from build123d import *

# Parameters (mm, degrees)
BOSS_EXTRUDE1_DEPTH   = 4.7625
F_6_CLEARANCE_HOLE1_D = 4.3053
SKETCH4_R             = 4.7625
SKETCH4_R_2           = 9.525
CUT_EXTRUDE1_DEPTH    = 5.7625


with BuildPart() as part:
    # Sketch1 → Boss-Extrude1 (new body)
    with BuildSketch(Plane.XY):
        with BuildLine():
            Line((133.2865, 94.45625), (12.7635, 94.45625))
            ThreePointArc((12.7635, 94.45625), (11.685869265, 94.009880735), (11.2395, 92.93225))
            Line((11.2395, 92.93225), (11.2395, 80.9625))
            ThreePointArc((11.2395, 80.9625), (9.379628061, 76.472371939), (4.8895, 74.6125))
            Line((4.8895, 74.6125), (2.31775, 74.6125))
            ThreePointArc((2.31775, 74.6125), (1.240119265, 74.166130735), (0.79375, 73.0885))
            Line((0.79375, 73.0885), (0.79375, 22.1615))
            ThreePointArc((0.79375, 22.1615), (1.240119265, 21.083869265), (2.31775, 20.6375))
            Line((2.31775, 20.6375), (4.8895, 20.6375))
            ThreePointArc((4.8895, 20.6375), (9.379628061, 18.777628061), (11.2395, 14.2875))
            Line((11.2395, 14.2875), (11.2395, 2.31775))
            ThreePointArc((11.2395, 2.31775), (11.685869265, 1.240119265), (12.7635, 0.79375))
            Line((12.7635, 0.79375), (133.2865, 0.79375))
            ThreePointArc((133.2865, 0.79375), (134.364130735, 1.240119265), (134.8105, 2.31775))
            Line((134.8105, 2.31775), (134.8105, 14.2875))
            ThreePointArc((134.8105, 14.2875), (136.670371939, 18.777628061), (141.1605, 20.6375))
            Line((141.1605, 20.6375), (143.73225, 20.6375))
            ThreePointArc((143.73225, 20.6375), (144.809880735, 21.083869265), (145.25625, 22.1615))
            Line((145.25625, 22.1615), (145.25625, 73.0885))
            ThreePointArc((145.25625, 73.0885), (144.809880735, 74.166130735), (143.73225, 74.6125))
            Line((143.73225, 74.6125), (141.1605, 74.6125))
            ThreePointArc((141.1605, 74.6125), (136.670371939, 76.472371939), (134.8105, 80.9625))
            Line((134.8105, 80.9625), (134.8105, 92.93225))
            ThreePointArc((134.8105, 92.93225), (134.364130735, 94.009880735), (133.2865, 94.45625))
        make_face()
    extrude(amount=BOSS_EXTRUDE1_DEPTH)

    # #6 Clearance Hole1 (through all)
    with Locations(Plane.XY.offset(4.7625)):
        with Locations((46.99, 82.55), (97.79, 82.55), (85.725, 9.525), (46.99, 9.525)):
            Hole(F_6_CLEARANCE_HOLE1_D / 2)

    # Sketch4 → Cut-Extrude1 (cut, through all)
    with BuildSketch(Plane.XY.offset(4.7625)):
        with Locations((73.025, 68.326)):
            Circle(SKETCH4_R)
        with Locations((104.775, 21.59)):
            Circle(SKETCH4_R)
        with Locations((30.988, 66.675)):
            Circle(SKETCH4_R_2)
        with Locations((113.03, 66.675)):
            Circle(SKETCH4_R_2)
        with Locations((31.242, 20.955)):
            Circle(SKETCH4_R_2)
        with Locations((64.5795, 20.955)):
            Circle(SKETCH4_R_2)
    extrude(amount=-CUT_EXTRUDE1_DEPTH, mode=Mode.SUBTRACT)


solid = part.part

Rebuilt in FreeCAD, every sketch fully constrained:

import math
import FreeCAD as App
import Part
import Sketcher
Q = App.Units.Quantity

doc = App.newDocument("Part")
params = doc.addObject("Spreadsheet::Sheet", "Params")
for row, (alias, value) in enumerate([
    ("sketch1_radius", "0.06 in"),
    ("sketch1_radius2", "0.25 in"),
    ("sketch1_width", "4.745 in"),
    ("sketch1_height", "2.005 in"),
    ("pad1_length", "0.1875 in"),
    ("hole_diameter", "0.1695 in"),
    ("sketch3_diameter", "0.75 in"),
    ("sketch3_diameter2", "0.375 in"),
], start=1):
    params.set(f"A{row}", alias)
    params.set(f"B{row}", "=" + value)
    params.setAlias(f"B{row}", alias)

body = doc.addObject("PartDesign::Body", "Body")

# Sketch on XY plane
sketch1 = body.newObject("Sketcher::SketchObject", "Sketch")
sketch1.AttachmentSupport = (doc.getObject("XY_Plane"), [""])
sketch1.MapMode = "FlatFace"
sketch1.addGeometry(Part.LineSegment(App.Vector(133.3, 94.5, 0), App.Vector(12.8, 94.5, 0)), False)
sketch1.addGeometry(Part.ArcOfCircle(Part.Circle(App.Vector(12.8, 92.9, 0), App.Vector(0, 0, 1), 1.5), math.radians(90), math.radians(180)), False)
sketch1.addGeometry(Part.LineSegment(App.Vector(11.2, 92.9, 0), App.Vector(11.2, 81, 0)), False)
sketch1.addGeometry(Part.ArcOfCircle(Part.Circle(App.Vector(4.9, 81, 0), App.Vector(0, 0, 1), 6.3), math.radians(-90), math.radians(0)), False)
sketch1.addGeometry(Part.LineSegment(App.Vector(4.9, 74.6, 0), App.Vector(2.3, 74.6, 0)), False)
sketch1.addGeometry(Part.ArcOfCircle(Part.Circle(App.Vector(2.3, 73.1, 0), App.Vector(0, 0, 1), 1.5), math.radians(90), math.radians(180)), False)
sketch1.addGeometry(Part.LineSegment(App.Vector(0.8, 73.1, 0), App.Vector(0.8, 22.2, 0)), False)
sketch1.addGeometry(Part.ArcOfCircle(Part.Circle(App.Vector(2.3, 22.2, 0), App.Vector(0, 0, 1), 1.5), math.radians(180), math.radians(270)), False)
sketch1.addGeometry(Part.LineSegment(App.Vector(2.3, 20.6, 0), App.Vector(4.9, 20.6, 0)), False)
sketch1.addGeometry(Part.ArcOfCircle(Part.Circle(App.Vector(4.9, 14.3, 0), App.Vector(0, 0, 1), 6.3), math.radians(0), math.radians(90)), False)
sketch1.addGeometry(Part.LineSegment(App.Vector(11.2, 14.3, 0), App.Vector(11.2, 2.3, 0)), False)
sketch1.addGeometry(Part.ArcOfCircle(Part.Circle(App.Vector(12.8, 2.3, 0), App.Vector(0, 0, 1), 1.5), math.radians(180), math.radians(270)), False)
sketch1.addGeometry(Part.LineSegment(App.Vector(12.8, 0.8, 0), App.Vector(133.3, 0.8, 0)), False)
sketch1.addGeometry(Part.ArcOfCircle(Part.Circle(App.Vector(133.3, 2.3, 0), App.Vector(0, 0, 1), 1.5), math.radians(-90), math.radians(0)), False)
sketch1.addGeometry(Part.LineSegment(App.Vector(134.8, 2.3, 0), App.Vector(134.8, 14.3, 0)), False)
sketch1.addGeometry(Part.ArcOfCircle(Part.Circle(App.Vector(141.2, 14.3, 0), App.Vector(0, 0, 1), 6.3), math.radians(90), math.radians(180)), False)
sketch1.addGeometry(Part.LineSegment(App.Vector(141.2, 20.6, 0), App.Vector(143.7, 20.6, 0)), False)
sketch1.addGeometry(Part.ArcOfCircle(Part.Circle(App.Vector(143.7, 22.2, 0), App.Vector(0, 0, 1), 1.5), math.radians(-90), math.radians(0)), False)
sketch1.addGeometry(Part.LineSegment(App.Vector(145.3, 22.2, 0), App.Vector(145.3, 73.1, 0)), False)
sketch1.addGeometry(Part.ArcOfCircle(Part.Circle(App.Vector(143.7, 73.1, 0), App.Vector(0, 0, 1), 1.5), math.radians(0), math.radians(90)), False)
sketch1.addGeometry(Part.LineSegment(App.Vector(143.7, 74.6, 0), App.Vector(141.2, 74.6, 0)), False)
sketch1.addGeometry(Part.ArcOfCircle(Part.Circle(App.Vector(141.2, 81, 0), App.Vector(0, 0, 1), 6.3), math.radians(180), math.radians(270)), False)
sketch1.addGeometry(Part.LineSegment(App.Vector(134.8, 81, 0), App.Vector(134.8, 92.9, 0)), False)
sketch1.addGeometry(Part.ArcOfCircle(Part.Circle(App.Vector(133.3, 92.9, 0), App.Vector(0, 0, 1), 1.5), math.radians(0), math.radians(90)), False)
sketch1.addConstraint(Sketcher.Constraint("Tangent", 0, 2, 1, 1))
sketch1.addConstraint(Sketcher.Constraint("Tangent", 1, 2, 2, 1))
sketch1.addConstraint(Sketcher.Constraint("Tangent", 2, 2, 3, 2))
sketch1.addConstraint(Sketcher.Constraint("Tangent", 3, 1, 4, 1))
sketch1.addConstraint(Sketcher.Constraint("Tangent", 4, 2, 5, 1))
sketch1.addConstraint(Sketcher.Constraint("Tangent", 5, 2, 6, 1))
sketch1.addConstraint(Sketcher.Constraint("Tangent", 6, 2, 7, 1))
sketch1.addConstraint(Sketcher.Constraint("Tangent", 7, 2, 8, 1))
sketch1.addConstraint(Sketcher.Constraint("Tangent", 8, 2, 9, 2))
sketch1.addConstraint(Sketcher.Constraint("Tangent", 9, 1, 10, 1))
sketch1.addConstraint(Sketcher.Constraint("Tangent", 10, 2, 11, 1))
sketch1.addConstraint(Sketcher.Constraint("Tangent", 11, 2, 12, 1))
sketch1.addConstraint(Sketcher.Constraint("Tangent", 12, 2, 13, 1))
sketch1.addConstraint(Sketcher.Constraint("Tangent", 13, 2, 14, 1))
sketch1.addConstraint(Sketcher.Constraint("Tangent", 14, 2, 15, 2))
sketch1.addConstraint(Sketcher.Constraint("Tangent", 15, 1, 16, 1))
sketch1.addConstraint(Sketcher.Constraint("Tangent", 16, 2, 17, 1))
sketch1.addConstraint(Sketcher.Constraint("Tangent", 17, 2, 18, 1))
sketch1.addConstraint(Sketcher.Constraint("Tangent", 18, 2, 19, 1))
sketch1.addConstraint(Sketcher.Constraint("Tangent", 19, 2, 20, 1))
sketch1.addConstraint(Sketcher.Constraint("Tangent", 20, 2, 21, 2))
sketch1.addConstraint(Sketcher.Constraint("Tangent", 21, 1, 22, 1))
sketch1.addConstraint(Sketcher.Constraint("Tangent", 22, 2, 23, 1))
sketch1.addConstraint(Sketcher.Constraint("Tangent", 23, 2, 0, 1))
sketch1.addConstraint(Sketcher.Constraint("Horizontal", 0))
sketch1.addConstraint(Sketcher.Constraint("Vertical", 2))
sketch1.addConstraint(Sketcher.Constraint("Horizontal", 4))
sketch1.addConstraint(Sketcher.Constraint("Vertical", 6))
sketch1.addConstraint(Sketcher.Constraint("Horizontal", 8))
sketch1.addConstraint(Sketcher.Constraint("Vertical", 10))
sketch1.addConstraint(Sketcher.Constraint("Horizontal", 12))
sketch1.addConstraint(Sketcher.Constraint("Vertical", 14))
sketch1.addConstraint(Sketcher.Constraint("Horizontal", 16))
sketch1.addConstraint(Sketcher.Constraint("Vertical", 18))
sketch1.addConstraint(Sketcher.Constraint("Horizontal", 20))
sketch1.addConstraint(Sketcher.Constraint("Vertical", 22))
sketch1.addConstraint(Sketcher.Constraint("Equal", 1, 5))
sketch1.addConstraint(Sketcher.Constraint("Equal", 5, 7))
sketch1.addConstraint(Sketcher.Constraint("Equal", 3, 9))
sketch1.addConstraint(Sketcher.Constraint("Equal", 7, 11))
sketch1.addConstraint(Sketcher.Constraint("Equal", 11, 13))
sketch1.addConstraint(Sketcher.Constraint("Equal", 9, 15))
sketch1.addConstraint(Sketcher.Constraint("Equal", 13, 17))
sketch1.addConstraint(Sketcher.Constraint("Equal", 17, 19))
sketch1.addConstraint(Sketcher.Constraint("Equal", 15, 21))
sketch1.addConstraint(Sketcher.Constraint("Equal", 19, 23))
sketch1.addConstraint(Sketcher.Constraint("Horizontal", 9, 3, 15, 3))
sketch1.addConstraint(Sketcher.Constraint("Horizontal", 5, 3, 19, 3))
sketch1.addConstraint(Sketcher.Constraint("Vertical", 3, 3, 9, 3))
sketch1.addConstraint(Sketcher.Constraint("Vertical", 15, 3, 21, 3))
sketch1.addConstraint(Sketcher.Constraint("Equal", 8, 16))
sketch1.addConstraint(Sketcher.Constraint("Equal", 2, 10))
sketch1.addConstraint(Sketcher.Constraint("Radius", 1, Q("0.06 in")))
sketch1.addConstraint(Sketcher.Constraint("Radius", 3, Q("0.25 in")))
sketch1.addConstraint(Sketcher.Constraint("DistanceX", 0, 2, 0, 1, Q("4.745 in")))
sketch1.addConstraint(Sketcher.Constraint("DistanceY", 6, 2, 6, 1, Q("2.005 in")))
sketch1.addConstraint(Sketcher.Constraint("DistanceY", -1, 1, 3, 3, Q("3.1875 in")))
sketch1.addConstraint(Sketcher.Constraint("DistanceY", -1, 1, 0, 2, Q("3.71875 in")))
sketch1.addConstraint(Sketcher.Constraint("DistanceX", -1, 1, 5, 2, Q("0.03125 in")))
sketch1.addConstraint(Sketcher.Constraint("DistanceX", -1, 1, 17, 2, Q("5.71875 in")))
sketch1.setExpression("Constraints[52]", "Params.sketch1_radius")
sketch1.setExpression("Constraints[53]", "Params.sketch1_radius2")
sketch1.setExpression("Constraints[54]", "Params.sketch1_width")
sketch1.setExpression("Constraints[55]", "Params.sketch1_height")
pad1 = body.newObject("PartDesign::Pad", "Pad")
pad1.Profile = sketch1
pad1.setExpression("Length", "Params.pad1_length")

# Sketch on XY plane
sketch2 = body.newObject("Sketcher::SketchObject", "Sketch001")
sketch2.AttachmentSupport = (doc.getObject("XY_Plane"), [""])
sketch2.MapMode = "FlatFace"
sketch2.AttachmentOffset = App.Placement(App.Vector(0, 0, 0.1875 * 25.4), App.Rotation())
sketch2.addGeometry(Part.Circle(App.Vector(47, 82.5, 0), App.Vector(0, 0, 1), 2.2), False)
sketch2.addGeometry(Part.Circle(App.Vector(97.8, 82.5, 0), App.Vector(0, 0, 1), 2.2), False)
sketch2.addGeometry(Part.Circle(App.Vector(85.7, 9.5, 0), App.Vector(0, 0, 1), 2.2), False)
sketch2.addGeometry(Part.Circle(App.Vector(47, 9.5, 0), App.Vector(0, 0, 1), 2.2), False)
sketch2.addConstraint(Sketcher.Constraint("Equal", 0, 1))
sketch2.addConstraint(Sketcher.Constraint("Equal", 1, 2))
sketch2.addConstraint(Sketcher.Constraint("Equal", 2, 3))
sketch2.addConstraint(Sketcher.Constraint("Horizontal", 0, 3, 1, 3))
sketch2.addConstraint(Sketcher.Constraint("Horizontal", 2, 3, 3, 3))
sketch2.addConstraint(Sketcher.Constraint("Vertical", 0, 3, 3, 3))
sketch2.addConstraint(Sketcher.Constraint("DistanceX", 0, 3, 1, 3, Q("2 in")))
sketch2.addConstraint(Sketcher.Constraint("Diameter", 0, Q("0.1695 in")))
sketch2.addConstraint(Sketcher.Constraint("DistanceX", -1, 1, 0, 3, Q("1.85 in")))
sketch2.addConstraint(Sketcher.Constraint("DistanceY", -1, 1, 0, 3, Q("3.25 in")))
sketch2.addConstraint(Sketcher.Constraint("DistanceX", -1, 1, 2, 3, Q("3.375 in")))
sketch2.addConstraint(Sketcher.Constraint("DistanceY", -1, 1, 2, 3, Q("0.375 in")))
doc.recompute()
hole = body.newObject("PartDesign::Hole", "Hole")
hole.Profile = sketch2
hole.ThreadType = "None"
hole.setExpression("Diameter", "Params.hole_diameter")
hole.DepthType = "ThroughAll"

# Sketch on XY plane
sketch3 = body.newObject("Sketcher::SketchObject", "Sketch002")
sketch3.AttachmentSupport = (doc.getObject("XY_Plane"), [""])
sketch3.MapMode = "FlatFace"
sketch3.AttachmentOffset = App.Placement(App.Vector(0, 0, 0.1875 * 25.4), App.Rotation())
sketch3.addGeometry(Part.Circle(App.Vector(73, 68.3, 0), App.Vector(0, 0, 1), 4.8), False)
sketch3.addGeometry(Part.Circle(App.Vector(104.8, 21.6, 0), App.Vector(0, 0, 1), 4.8), False)
sketch3.addGeometry(Part.Circle(App.Vector(31, 66.7, 0), App.Vector(0, 0, 1), 9.5), False)
sketch3.addGeometry(Part.Circle(App.Vector(113, 66.7, 0), App.Vector(0, 0, 1), 9.5), False)
sketch3.addGeometry(Part.Circle(App.Vector(31.2, 21, 0), App.Vector(0, 0, 1), 9.5), False)
sketch3.addGeometry(Part.Circle(App.Vector(64.6, 21, 0), App.Vector(0, 0, 1), 9.5), False)
sketch3.addConstraint(Sketcher.Constraint("Equal", 0, 1))
sketch3.addConstraint(Sketcher.Constraint("Equal", 2, 3))
sketch3.addConstraint(Sketcher.Constraint("Equal", 3, 4))
sketch3.addConstraint(Sketcher.Constraint("Equal", 4, 5))
sketch3.addConstraint(Sketcher.Constraint("Horizontal", 2, 3, 3, 3))
sketch3.addConstraint(Sketcher.Constraint("Horizontal", 4, 3, 5, 3))
sketch3.addConstraint(Sketcher.Constraint("Diameter", 2, Q("0.75 in")))
sketch3.addConstraint(Sketcher.Constraint("Diameter", 0, Q("0.375 in")))
sketch3.addConstraint(Sketcher.Constraint("DistanceY", 4, 3, 2, 3, Q("1.8 in")))
sketch3.addConstraint(Sketcher.Constraint("DistanceY", -1, 1, 0, 3, Q("2.69 in")))
sketch3.addConstraint(Sketcher.Constraint("DistanceY", -1, 1, 1, 3, Q("0.85 in")))
sketch3.addConstraint(Sketcher.Constraint("DistanceX", -1, 1, 2, 3, Q("1.22 in")))
sketch3.addConstraint(Sketcher.Constraint("DistanceX", -1, 1, 3, 3, Q("4.45 in")))
sketch3.addConstraint(Sketcher.Constraint("DistanceX", -1, 1, 4, 3, Q("1.23 in")))
sketch3.addConstraint(Sketcher.Constraint("DistanceX", 0, 3, 1, 3, Q("1.25 in")))
sketch3.addConstraint(Sketcher.Constraint("DistanceX", -1, 1, 0, 3, Q("2.875 in")))
sketch3.addConstraint(Sketcher.Constraint("DistanceY", -1, 1, 2, 3, Q("2.625 in")))
sketch3.addConstraint(Sketcher.Constraint("DistanceX", 4, 3, 5, 3, Q("1.3125 in")))
sketch3.setExpression("Constraints[6]", "Params.sketch3_diameter")
sketch3.setExpression("Constraints[7]", "Params.sketch3_diameter2")
pocket1 = body.newObject("PartDesign::Pocket", "Pocket")
pocket1.Profile = sketch3
pocket1.Type = "ThroughAll"

doc.recompute()
